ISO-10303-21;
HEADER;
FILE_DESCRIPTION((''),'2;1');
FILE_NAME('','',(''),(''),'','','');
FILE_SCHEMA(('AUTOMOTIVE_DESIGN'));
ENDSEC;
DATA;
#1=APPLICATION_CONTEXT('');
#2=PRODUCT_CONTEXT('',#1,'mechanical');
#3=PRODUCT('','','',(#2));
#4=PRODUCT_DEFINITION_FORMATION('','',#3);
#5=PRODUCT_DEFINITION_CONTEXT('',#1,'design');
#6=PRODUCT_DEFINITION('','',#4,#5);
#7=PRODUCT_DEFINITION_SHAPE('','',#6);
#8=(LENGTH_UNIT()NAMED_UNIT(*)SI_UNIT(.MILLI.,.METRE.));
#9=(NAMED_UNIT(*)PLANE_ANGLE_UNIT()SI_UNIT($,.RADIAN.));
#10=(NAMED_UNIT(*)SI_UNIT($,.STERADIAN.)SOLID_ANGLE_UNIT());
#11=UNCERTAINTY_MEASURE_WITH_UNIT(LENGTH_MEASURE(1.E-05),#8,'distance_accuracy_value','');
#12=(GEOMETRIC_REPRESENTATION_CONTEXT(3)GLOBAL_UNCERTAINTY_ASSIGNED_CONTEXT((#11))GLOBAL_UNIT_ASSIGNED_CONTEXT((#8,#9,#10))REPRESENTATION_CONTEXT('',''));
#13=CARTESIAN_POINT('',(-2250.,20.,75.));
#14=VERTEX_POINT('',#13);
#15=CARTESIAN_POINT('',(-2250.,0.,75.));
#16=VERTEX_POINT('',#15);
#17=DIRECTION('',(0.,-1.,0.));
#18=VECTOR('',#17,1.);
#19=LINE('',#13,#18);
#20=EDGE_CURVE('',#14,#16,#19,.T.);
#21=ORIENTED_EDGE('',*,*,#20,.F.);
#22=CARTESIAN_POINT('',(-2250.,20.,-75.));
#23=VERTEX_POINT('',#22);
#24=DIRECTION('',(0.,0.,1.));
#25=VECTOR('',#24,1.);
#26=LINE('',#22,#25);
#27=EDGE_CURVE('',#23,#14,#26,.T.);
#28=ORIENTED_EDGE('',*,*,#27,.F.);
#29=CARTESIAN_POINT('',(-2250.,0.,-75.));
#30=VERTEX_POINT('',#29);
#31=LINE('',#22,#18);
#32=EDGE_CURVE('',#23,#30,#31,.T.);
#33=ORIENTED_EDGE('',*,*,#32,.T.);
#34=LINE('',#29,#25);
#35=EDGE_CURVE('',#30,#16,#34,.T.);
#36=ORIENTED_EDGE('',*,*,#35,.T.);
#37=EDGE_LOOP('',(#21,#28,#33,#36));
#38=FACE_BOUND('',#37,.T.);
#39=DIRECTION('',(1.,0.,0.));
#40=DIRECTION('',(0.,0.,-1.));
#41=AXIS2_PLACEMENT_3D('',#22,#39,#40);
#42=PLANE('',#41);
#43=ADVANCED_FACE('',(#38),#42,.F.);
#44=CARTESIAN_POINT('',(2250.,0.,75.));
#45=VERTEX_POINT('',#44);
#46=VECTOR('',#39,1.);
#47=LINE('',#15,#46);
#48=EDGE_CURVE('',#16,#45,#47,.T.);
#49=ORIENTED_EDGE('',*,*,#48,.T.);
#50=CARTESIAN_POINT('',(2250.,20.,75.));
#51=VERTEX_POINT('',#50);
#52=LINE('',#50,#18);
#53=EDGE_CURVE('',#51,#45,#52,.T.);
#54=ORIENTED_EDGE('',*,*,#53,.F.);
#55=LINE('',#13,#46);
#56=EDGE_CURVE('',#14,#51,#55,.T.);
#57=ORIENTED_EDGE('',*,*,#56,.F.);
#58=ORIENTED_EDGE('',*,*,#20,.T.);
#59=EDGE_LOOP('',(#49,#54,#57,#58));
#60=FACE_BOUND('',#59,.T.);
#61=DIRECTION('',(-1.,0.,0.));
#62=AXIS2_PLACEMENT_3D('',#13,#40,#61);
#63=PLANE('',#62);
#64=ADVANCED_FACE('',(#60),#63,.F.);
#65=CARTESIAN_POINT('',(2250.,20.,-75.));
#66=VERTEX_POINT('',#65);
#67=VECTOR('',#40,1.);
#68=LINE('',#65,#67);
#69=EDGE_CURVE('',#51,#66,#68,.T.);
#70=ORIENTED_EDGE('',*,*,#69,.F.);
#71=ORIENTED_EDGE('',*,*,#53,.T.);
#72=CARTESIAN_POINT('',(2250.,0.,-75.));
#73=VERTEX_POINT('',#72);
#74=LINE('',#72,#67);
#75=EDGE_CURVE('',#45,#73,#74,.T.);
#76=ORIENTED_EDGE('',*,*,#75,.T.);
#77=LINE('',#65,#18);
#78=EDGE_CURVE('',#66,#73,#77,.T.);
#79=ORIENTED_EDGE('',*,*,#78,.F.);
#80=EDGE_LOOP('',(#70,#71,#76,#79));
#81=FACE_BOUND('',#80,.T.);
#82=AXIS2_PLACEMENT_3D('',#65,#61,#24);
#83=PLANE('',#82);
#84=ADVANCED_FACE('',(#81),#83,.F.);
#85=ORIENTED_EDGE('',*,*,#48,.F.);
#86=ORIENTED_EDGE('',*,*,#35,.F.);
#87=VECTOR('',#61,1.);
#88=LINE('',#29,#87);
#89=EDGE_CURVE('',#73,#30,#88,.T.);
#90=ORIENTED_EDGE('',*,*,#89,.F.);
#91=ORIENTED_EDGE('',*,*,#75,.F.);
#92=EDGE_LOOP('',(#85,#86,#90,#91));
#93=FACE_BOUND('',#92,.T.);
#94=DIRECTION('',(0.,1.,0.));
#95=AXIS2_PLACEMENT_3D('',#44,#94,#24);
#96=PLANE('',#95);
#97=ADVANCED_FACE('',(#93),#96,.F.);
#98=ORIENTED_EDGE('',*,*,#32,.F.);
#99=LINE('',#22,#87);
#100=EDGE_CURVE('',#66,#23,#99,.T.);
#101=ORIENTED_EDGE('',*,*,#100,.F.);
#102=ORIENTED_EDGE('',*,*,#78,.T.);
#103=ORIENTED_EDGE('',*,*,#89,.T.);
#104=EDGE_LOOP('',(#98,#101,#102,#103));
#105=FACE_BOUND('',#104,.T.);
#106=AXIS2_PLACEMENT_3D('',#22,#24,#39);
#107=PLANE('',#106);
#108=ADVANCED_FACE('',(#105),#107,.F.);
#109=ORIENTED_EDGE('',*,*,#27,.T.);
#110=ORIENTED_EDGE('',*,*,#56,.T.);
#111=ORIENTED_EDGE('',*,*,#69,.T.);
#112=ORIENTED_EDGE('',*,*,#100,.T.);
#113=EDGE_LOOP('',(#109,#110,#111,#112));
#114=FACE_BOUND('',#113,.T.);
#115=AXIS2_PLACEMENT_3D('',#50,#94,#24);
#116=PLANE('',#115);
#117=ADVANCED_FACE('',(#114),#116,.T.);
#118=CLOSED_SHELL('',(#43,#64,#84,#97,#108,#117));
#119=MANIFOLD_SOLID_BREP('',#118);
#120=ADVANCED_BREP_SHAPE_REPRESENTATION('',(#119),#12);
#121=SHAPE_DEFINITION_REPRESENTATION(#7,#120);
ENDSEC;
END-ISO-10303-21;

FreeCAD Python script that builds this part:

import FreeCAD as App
import Part
import Sketcher

doc = App.newDocument("Part")
body = doc.addObject("PartDesign::Body", "Body")

sketch1 = body.newObject("Sketcher::SketchObject", "Sketch")
sketch1.AttachmentSupport = (doc.getObject("XZ_Plane"), [""])
sketch1.MapMode = "FlatFace"
sketch1.addGeometry([
    Part.LineSegment(App.Vector(-2250, -75, 0), App.Vector(-2250, 75, 0)),
    Part.LineSegment(App.Vector(-2250, 75, 0), App.Vector(2250, 75, 0)),
    Part.LineSegment(App.Vector(2250, 75, 0), App.Vector(2250, -75, 0)),
    Part.LineSegment(App.Vector(2250, -75, 0), App.Vector(-2250, -75, 0)),
], False)
sketch1.addConstraint([
    Sketcher.Constraint("Coincident", 0, 2, 1, 1),
    Sketcher.Constraint("Coincident", 1, 2, 2, 1),
    Sketcher.Constraint("Coincident", 2, 2, 3, 1),
    Sketcher.Constraint("Coincident", 3, 2, 0, 1),
    Sketcher.Constraint("Vertical", 0),
    Sketcher.Constraint("Horizontal", 1),
    Sketcher.Constraint("Vertical", 2),
    Sketcher.Constraint("Horizontal", 3),
    Sketcher.Constraint("Symmetric", 0, 2, 2, 2, -1, 1),
    Sketcher.Constraint("DistanceX", 1, 1, 1, 2, 4500.0),
    Sketcher.Constraint("DistanceY", 0, 1, 0, 2, 150.0),
])
pad1 = body.newObject("PartDesign::Pad", "Pad")
pad1.Profile = sketch1
pad1.Length = 20
pad1.Reversed = True

doc.recompute()
